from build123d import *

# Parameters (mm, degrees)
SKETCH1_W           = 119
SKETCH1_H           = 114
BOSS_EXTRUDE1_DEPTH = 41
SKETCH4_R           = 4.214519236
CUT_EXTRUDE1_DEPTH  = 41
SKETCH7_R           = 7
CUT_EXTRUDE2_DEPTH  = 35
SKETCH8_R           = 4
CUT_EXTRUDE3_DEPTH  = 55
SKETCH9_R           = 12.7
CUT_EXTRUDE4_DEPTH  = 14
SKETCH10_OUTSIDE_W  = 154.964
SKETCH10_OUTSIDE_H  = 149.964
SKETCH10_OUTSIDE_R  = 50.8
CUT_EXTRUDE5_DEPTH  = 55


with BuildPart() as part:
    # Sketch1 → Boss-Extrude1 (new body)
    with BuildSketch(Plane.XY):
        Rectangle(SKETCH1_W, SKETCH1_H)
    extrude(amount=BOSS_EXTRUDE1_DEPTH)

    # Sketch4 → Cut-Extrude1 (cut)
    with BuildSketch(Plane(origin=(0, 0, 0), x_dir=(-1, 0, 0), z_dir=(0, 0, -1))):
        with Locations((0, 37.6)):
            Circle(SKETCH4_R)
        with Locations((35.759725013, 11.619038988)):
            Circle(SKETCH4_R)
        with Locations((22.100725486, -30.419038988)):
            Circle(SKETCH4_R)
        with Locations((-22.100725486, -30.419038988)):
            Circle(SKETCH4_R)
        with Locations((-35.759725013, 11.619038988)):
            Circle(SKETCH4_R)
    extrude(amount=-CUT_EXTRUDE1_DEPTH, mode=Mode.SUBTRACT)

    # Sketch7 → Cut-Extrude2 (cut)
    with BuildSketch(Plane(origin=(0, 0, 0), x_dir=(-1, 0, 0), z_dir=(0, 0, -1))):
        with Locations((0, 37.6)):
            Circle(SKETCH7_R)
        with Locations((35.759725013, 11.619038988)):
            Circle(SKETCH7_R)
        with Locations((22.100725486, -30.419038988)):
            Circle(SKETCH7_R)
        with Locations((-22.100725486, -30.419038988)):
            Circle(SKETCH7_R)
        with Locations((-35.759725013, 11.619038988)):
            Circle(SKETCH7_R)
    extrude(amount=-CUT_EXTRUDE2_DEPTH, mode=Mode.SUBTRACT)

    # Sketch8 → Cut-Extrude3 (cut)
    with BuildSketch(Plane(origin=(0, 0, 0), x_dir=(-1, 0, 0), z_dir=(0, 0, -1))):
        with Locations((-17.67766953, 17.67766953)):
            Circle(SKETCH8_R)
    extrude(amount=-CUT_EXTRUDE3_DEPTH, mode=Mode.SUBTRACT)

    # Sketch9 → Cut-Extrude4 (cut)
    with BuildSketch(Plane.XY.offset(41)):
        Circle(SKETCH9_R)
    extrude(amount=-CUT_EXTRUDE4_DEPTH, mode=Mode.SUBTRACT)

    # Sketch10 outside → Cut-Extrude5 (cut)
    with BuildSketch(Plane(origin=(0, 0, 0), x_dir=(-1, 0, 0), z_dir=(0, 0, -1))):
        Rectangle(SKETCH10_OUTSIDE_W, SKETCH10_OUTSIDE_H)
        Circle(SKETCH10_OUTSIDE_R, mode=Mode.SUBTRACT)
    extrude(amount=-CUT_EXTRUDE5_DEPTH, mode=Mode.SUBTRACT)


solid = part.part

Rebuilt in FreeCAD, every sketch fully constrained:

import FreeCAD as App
import Part
import Sketcher
from FreeCAD import Vector
Q = App.Units.Quantity

doc = App.newDocument("Part")
body = doc.addObject("PartDesign::Body", "Body")

# Sketch on XY plane
sketch1 = body.newObject("Sketcher::SketchObject", "Sketch")
sketch1.AttachmentSupport = (doc.getObject("XY_Plane"), [""])
sketch1.MapMode = "FlatFace"
sketch1.addGeometry([
    Part.LineSegment(Vector(-60, 57, 0), Vector(-60, -57, 0)),
    Part.LineSegment(Vector(-60, -57, 0), Vector(60, -57, 0)),
    Part.LineSegment(Vector(60, -57, 0), Vector(60, 57, 0)),
    Part.LineSegment(Vector(60, 57, 0), Vector(-60, 57, 0)),
], False)
sketch1.addConstraint([
    Sketcher.Constraint("Coincident", 0, 2, 1, 1),
    Sketcher.Constraint("Coincident", 1, 2, 2, 1),
    Sketcher.Constraint("Coincident", 2, 2, 3, 1),
    Sketcher.Constraint("Coincident", 3, 2, 0, 1),
    Sketcher.Constraint("Vertical", 0),
    Sketcher.Constraint("Horizontal", 1),
    Sketcher.Constraint("Vertical", 2),
    Sketcher.Constraint("Horizontal", 3),
    Sketcher.Constraint("Symmetric", 0, 2, 2, 2, -1, 1),
    Sketcher.Constraint("DistanceX", 1, 1, 1, 2, Q("119 mm")),
    Sketcher.Constraint("DistanceY", 0, 2, 0, 1, Q("114 mm")),
])
pad1 = body.newObject("PartDesign::Pad", "Pad")
pad1.Profile = sketch1
pad1.Length = 41

# Sketch on XY plane
sketch2 = body.newObject("Sketcher::SketchObject", "Sketch001")
sketch2.AttachmentSupport = (doc.getObject("XY_Plane"), [""])
sketch2.MapMode = "FlatFace"
sketch2.addGeometry([
    Part.Circle(Vector(0, 37.6, 0), Vector(0, 0, 1), 4.2),  # 0
    Part.Circle(Vector(-35.8, 11.6, 0), Vector(0, 0, 1), 4.2),  # 1
    Part.Circle(Vector(-22.1, -30.4, 0), Vector(0, 0, 1), 4.2),  # 2
    Part.Circle(Vector(22.1, -30.4, 0), Vector(0, 0, 1), 4.2),  # 3
    Part.Circle(Vector(35.8, 11.6, 0), Vector(0, 0, 1), 4.2),  # 4
], False)
sketch2.addConstraint([
    Sketcher.Constraint("Equal", 0, 1),
    Sketcher.Constraint("Equal", 1, 2),
    Sketcher.Constraint("Equal", 2, 3),
    Sketcher.Constraint("Equal", 3, 4),
    Sketcher.Constraint("Symmetric", 2, 3, 3, 3, -2),
    Sketcher.Constraint("Symmetric", 1, 3, 4, 3, -2),
    Sketcher.Constraint("PointOnObject", 0, 3, -2),
    Sketcher.Constraint("DistanceY", -1, 1, 0, 3, Q("37.6 mm")),
    Sketcher.Constraint("Diameter", 0, Q("8.429038 mm")),
    Sketcher.Constraint("DistanceX", 1, 3, 2, 3, Q("13.659 mm")),
    Sketcher.Constraint("DistanceY", -1, 1, 1, 3, Q("11.619039 mm")),
    Sketcher.Constraint("DistanceY", 2, 3, -1, 1, Q("30.419039 mm")),
    Sketcher.Constraint("DistanceX", 2, 3, 3, 3, Q("44.201451 mm")),
])
pocket1 = body.newObject("PartDesign::Pocket", "Pocket")
pocket1.Profile = sketch2
pocket1.Length = 41
pocket1.Reversed = True

# Sketch on XY plane
sketch3 = body.newObject("Sketcher::SketchObject", "Sketch002")
sketch3.AttachmentSupport = (doc.getObject("XY_Plane"), [""])
sketch3.MapMode = "FlatFace"
sketch3.addGeometry([
    Part.Circle(Vector(0, 38, 0), Vector(0, 0, 1), 7),  # 0
    Part.Circle(Vector(-36, 12, 0), Vector(0, 0, 1), 7),  # 1
    Part.Circle(Vector(-22, -30, 0), Vector(0, 0, 1), 7),  # 2
    Part.Circle(Vector(22, -30, 0), Vector(0, 0, 1), 7),  # 3
    Part.Circle(Vector(36, 12, 0), Vector(0, 0, 1), 7),  # 4
], False)
sketch3.addConstraint([
    Sketcher.Constraint("Equal", 0, 1),
    Sketcher.Constraint("Equal", 1, 2),
    Sketcher.Constraint("Equal", 2, 3),
    Sketcher.Constraint("Equal", 3, 4),
    Sketcher.Constraint("Symmetric", 2, 3, 3, 3, -2),
    Sketcher.Constraint("Symmetric", 1, 3, 4, 3, -2),
    Sketcher.Constraint("PointOnObject", 0, 3, -2),
    Sketcher.Constraint("Diameter", 0, Q("14 mm")),
    Sketcher.Constraint("DistanceY", -1, 1, 0, 3, Q("37.6 mm")),
    Sketcher.Constraint("DistanceX", 1, 3, 2, 3, Q("13.659 mm")),
    Sketcher.Constraint("DistanceY", -1, 1, 1, 3, Q("11.619039 mm")),
    Sketcher.Constraint("DistanceY", 2, 3, -1, 1, Q("30.419039 mm")),
    Sketcher.Constraint("DistanceX", 2, 3, 3, 3, Q("44.201451 mm")),
])
pocket2 = body.newObject("PartDesign::Pocket", "Pocket001")
pocket2.Profile = sketch3
pocket2.Length = 35
pocket2.Reversed = True

# Sketch on XY plane
sketch4 = body.newObject("Sketcher::SketchObject", "Sketch003")
sketch4.AttachmentSupport = (doc.getObject("XY_Plane"), [""])
sketch4.MapMode = "FlatFace"
sketch4.addGeometry(Part.Circle(Vector(17.7, 17.7, 0), Vector(0, 0, 1), 4), False)
sketch4.addConstraint([
    Sketcher.Constraint("Diameter", 0, Q("8 mm")),
    Sketcher.Constraint("DistanceX", -1, 1, 0, 3, Q("17.67767 mm")),
    Sketcher.Constraint("DistanceY", -1, 1, 0, 3, Q("17.67767 mm")),
])
pocket3 = body.newObject("PartDesign::Pocket", "Pocket002")
pocket3.Profile = sketch4
pocket3.Length = 55
pocket3.Reversed = True

# Sketch on XY plane
sketch5 = body.newObject("Sketcher::SketchObject", "Sketch004")
sketch5.AttachmentSupport = (doc.getObject("XY_Plane"), [""])
sketch5.MapMode = "FlatFace"
sketch5.AttachmentOffset = App.Placement(Vector(0, 0, 41), App.Rotation())
sketch5.addGeometry(Part.Circle(Vector(0, 0, 0), Vector(0, 0, 1), 13), False)
sketch5.addConstraint([
    Sketcher.Constraint("Coincident", 0, 3, -1, 1),
    Sketcher.Constraint("Diameter", 0, Q("25.4 mm")),
])
pocket4 = body.newObject("PartDesign::Pocket", "Pocket003")
pocket4.Profile = sketch5
pocket4.Length = 14

# Sketch on XY plane
sketch6 = body.newObject("Sketcher::SketchObject", "Sketch005")
sketch6.AttachmentSupport = (doc.getObject("XY_Plane"), [""])
sketch6.MapMode = "FlatFace"
sketch6.addGeometry([
    Part.LineSegment(Vector(77, 75, 0), Vector(77, -75, 0)),  # 0
    Part.LineSegment(Vector(77, -75, 0), Vector(-77, -75, 0)),  # 1
    Part.LineSegment(Vector(-77, -75, 0), Vector(-77, 75, 0)),  # 2
    Part.LineSegment(Vector(-77, 75, 0), Vector(77, 75, 0)),  # 3
    Part.Circle(Vector(0, 0, 0), Vector(0, 0, 1), 51),  # 4
], False)
sketch6.addConstraint([
    Sketcher.Constraint("Coincident", 0, 2, 1, 1),
    Sketcher.Constraint("Coincident", 1, 2, 2, 1),
    Sketcher.Constraint("Coincident", 2, 2, 3, 1),
    Sketcher.Constraint("Coincident", 3, 2, 0, 1),
    Sketcher.Constraint("Vertical", 0),
    Sketcher.Constraint("Horizontal", 1),
    Sketcher.Constraint("Vertical", 2),
    Sketcher.Constraint("Horizontal", 3),
    Sketcher.Constraint("Coincident", 4, 3, -1, 1),
    Sketcher.Constraint("Symmetric", 0, 2, 2, 2, -1, 1),
    Sketcher.Constraint("Diameter", 4, Q("101.6 mm")),
    Sketcher.Constraint("DistanceX", 1, 2, 1, 1, Q("154.964 mm")),
    Sketcher.Constraint("DistanceY", 0, 2, 0, 1, Q("149.964 mm")),
])
pocket5 = body.newObject("PartDesign::Pocket", "Pocket004")
pocket5.Profile = sketch6
pocket5.Length = 55
pocket5.Reversed = True

doc.recompute()
